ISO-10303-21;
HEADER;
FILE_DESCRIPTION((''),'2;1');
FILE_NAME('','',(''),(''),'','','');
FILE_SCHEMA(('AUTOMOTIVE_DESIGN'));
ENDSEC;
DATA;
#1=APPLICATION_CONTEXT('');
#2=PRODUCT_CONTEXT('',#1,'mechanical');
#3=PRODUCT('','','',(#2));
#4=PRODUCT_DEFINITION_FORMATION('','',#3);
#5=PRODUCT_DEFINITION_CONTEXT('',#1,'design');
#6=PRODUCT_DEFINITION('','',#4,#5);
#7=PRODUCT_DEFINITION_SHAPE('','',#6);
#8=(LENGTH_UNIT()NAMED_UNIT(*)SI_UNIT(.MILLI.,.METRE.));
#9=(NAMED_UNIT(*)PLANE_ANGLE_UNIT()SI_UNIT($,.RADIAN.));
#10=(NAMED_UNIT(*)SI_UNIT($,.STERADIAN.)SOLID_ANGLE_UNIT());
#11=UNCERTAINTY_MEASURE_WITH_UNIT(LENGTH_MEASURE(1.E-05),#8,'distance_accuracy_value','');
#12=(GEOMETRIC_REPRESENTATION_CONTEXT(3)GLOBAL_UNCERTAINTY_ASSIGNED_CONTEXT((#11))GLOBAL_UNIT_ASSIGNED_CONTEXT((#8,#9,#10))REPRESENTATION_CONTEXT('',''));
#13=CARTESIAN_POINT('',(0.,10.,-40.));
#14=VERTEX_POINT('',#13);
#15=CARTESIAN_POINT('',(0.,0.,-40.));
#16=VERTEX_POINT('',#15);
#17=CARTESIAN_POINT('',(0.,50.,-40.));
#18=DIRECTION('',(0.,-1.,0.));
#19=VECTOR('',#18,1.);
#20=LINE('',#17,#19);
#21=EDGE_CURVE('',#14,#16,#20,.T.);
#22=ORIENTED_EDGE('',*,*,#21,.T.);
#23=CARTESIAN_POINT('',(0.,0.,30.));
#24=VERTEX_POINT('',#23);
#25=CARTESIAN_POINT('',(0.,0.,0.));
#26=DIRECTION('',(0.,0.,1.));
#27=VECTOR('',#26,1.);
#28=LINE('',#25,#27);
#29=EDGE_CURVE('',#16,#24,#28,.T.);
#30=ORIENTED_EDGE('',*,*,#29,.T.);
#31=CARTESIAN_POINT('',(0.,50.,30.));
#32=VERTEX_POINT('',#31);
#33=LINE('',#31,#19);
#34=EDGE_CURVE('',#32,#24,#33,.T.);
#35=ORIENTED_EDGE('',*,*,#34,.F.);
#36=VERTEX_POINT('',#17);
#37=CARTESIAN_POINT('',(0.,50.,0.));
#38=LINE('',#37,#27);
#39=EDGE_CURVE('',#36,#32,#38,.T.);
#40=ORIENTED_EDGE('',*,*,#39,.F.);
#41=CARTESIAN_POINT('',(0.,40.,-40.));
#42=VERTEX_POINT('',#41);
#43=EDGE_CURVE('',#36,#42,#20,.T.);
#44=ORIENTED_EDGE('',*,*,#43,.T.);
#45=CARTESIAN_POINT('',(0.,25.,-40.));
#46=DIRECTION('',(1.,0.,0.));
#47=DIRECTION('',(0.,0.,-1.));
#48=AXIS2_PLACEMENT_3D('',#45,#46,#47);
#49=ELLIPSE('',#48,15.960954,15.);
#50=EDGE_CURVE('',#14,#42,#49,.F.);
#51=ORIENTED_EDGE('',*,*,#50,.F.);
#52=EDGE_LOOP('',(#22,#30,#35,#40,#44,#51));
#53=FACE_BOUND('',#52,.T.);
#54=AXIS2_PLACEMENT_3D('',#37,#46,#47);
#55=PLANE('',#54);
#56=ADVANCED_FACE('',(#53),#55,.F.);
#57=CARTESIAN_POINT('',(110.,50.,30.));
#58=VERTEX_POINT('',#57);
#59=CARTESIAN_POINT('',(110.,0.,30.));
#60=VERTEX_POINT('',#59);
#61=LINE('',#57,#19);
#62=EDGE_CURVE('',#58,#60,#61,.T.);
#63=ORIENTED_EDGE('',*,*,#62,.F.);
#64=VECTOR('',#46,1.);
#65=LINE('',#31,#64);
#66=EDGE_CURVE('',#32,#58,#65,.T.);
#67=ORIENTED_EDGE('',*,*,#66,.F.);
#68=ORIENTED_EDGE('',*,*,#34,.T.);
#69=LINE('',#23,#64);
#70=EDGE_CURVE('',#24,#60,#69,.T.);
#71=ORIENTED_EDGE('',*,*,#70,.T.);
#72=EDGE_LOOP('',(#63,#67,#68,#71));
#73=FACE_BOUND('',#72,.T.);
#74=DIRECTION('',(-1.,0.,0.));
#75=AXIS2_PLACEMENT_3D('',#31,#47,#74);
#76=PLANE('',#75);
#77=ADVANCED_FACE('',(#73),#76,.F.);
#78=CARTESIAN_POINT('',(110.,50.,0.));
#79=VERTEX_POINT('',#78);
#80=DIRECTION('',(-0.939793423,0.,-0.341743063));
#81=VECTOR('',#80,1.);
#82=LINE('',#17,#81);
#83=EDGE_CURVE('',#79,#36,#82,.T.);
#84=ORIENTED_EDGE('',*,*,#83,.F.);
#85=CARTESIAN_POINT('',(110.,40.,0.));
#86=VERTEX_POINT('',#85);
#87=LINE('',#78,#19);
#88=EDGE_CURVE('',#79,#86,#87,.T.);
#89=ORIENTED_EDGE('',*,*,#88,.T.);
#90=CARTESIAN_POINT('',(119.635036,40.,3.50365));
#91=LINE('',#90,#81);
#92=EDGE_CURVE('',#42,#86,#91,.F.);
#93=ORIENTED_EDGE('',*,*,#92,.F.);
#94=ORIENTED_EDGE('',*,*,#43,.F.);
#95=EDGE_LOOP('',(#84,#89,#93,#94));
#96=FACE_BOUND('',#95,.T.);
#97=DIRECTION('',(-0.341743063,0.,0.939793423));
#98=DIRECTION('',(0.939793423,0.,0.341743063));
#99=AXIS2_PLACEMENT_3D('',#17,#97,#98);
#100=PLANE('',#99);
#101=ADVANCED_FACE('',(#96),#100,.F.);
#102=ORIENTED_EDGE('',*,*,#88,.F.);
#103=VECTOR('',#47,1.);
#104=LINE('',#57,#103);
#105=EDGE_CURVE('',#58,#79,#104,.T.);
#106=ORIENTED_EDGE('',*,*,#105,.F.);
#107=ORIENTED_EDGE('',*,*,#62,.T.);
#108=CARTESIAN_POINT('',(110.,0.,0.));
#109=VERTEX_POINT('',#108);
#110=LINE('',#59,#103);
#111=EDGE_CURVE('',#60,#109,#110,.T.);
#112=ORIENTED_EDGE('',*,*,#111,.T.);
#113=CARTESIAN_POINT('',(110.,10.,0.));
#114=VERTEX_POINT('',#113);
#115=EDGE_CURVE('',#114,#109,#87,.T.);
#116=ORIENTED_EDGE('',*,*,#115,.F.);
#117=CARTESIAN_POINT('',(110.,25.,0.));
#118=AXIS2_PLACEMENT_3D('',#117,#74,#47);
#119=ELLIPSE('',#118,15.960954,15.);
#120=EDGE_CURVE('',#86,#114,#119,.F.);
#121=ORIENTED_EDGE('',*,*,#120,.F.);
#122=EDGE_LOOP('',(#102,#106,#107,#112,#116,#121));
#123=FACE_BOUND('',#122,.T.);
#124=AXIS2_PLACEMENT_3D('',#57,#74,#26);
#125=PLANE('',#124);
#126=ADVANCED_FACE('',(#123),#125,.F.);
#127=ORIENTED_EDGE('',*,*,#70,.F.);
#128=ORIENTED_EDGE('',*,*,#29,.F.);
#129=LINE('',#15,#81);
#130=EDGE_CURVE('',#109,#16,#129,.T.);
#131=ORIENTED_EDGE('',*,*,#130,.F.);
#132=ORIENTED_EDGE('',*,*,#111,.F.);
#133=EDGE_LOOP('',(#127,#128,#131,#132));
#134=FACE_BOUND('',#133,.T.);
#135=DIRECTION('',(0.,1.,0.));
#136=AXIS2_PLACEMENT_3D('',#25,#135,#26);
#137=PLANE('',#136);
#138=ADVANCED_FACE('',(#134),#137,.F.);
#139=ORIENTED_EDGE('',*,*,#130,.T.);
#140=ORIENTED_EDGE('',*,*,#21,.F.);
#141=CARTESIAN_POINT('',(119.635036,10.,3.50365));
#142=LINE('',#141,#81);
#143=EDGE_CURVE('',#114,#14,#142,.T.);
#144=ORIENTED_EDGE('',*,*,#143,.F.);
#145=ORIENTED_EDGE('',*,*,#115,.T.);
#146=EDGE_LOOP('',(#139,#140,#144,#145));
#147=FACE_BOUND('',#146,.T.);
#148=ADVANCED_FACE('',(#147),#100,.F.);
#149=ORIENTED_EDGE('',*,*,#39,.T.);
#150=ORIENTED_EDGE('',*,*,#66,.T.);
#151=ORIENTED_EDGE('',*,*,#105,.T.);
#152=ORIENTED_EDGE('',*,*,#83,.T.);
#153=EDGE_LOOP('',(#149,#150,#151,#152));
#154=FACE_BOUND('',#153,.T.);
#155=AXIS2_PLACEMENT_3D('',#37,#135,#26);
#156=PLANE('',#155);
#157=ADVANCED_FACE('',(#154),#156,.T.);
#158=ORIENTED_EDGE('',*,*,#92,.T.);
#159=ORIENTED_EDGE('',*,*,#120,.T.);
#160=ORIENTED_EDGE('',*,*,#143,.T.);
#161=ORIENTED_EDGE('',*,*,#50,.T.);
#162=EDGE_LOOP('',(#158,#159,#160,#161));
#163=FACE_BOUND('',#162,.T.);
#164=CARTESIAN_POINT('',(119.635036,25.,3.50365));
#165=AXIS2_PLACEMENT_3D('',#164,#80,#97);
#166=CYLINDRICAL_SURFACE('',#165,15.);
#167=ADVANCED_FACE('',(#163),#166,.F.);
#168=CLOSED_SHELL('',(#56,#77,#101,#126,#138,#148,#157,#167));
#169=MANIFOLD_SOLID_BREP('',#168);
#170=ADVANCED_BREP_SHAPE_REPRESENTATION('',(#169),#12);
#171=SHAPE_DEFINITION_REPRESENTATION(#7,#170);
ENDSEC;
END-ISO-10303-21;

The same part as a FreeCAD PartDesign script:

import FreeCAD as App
import Part
import Sketcher
from FreeCAD import Vector
Q = App.Units.Quantity

doc = App.newDocument("Part")
params = doc.addObject("Spreadsheet::Sheet", "Params")
for row, (alias, value) in enumerate([
    ("sketch1_width", "110 mm"),
    ("sketch1_height", "70 mm"),
    ("sketch1_height2", "30 mm"),
    ("pad1_length", "50 mm"),
    ("sketch2_diameter", "30 mm"),
], start=1):
    params.set(f"A{row}", alias)
    params.set(f"B{row}", "=" + value)
    params.setAlias(f"B{row}", alias)

body = doc.addObject("PartDesign::Body", "Body")

# Sketch on XZ plane
sketch1 = doc.addObject("Sketcher::SketchObject", "Sketch")
body.addObject(sketch1)
sketch1.AttachmentSupport = (doc.XZ_Plane, [""])
sketch1.MapMode = "FlatFace"
sketch1.addGeometry([
    Part.LineSegment(Vector(0, -40, 0), Vector(0, 30, 0)),
    Part.LineSegment(Vector(0, 30, 0), Vector(110, 30, 0)),
    Part.LineSegment(Vector(110, 30, 0), Vector(110, 0, 0)),
    Part.LineSegment(Vector(110, 0, 0), Vector(0, -40, 0)),
], False)
sketch1.addConstraint([
    Sketcher.Constraint("Coincident", 0, 2, 1, 1),
    Sketcher.Constraint("Coincident", 1, 2, 2, 1),
    Sketcher.Constraint("Coincident", 2, 2, 3, 1),
    Sketcher.Constraint("Coincident", 3, 2, 0, 1),
    Sketcher.Constraint("Vertical", 0),
    Sketcher.Constraint("Horizontal", 1),
    Sketcher.Constraint("Vertical", 2),
    Sketcher.Constraint("PointOnObject", 0, 2, -2),
    Sketcher.Constraint("PointOnObject", 2, 2, -1),
    Sketcher.Constraint("DistanceX", 1, 1, 1, 2, Q("110 mm")),
    Sketcher.Constraint("DistanceY", 0, 1, 0, 2, Q("70 mm")),
    Sketcher.Constraint("DistanceY", 2, 2, 2, 1, Q("30 mm")),
])
sketch1.setExpression("Constraints[9]", "Params.sketch1_width")
sketch1.setExpression("Constraints[10]", "Params.sketch1_height")
sketch1.setExpression("Constraints[11]", "Params.sketch1_height2")
pad1 = doc.addObject("PartDesign::Pad", "Pad")
body.addObject(pad1)
pad1.Profile = sketch1
pad1.setExpression("Length", "Params.pad1_length")
pad1.Reversed = True

# Sketch on an angled plane
sketch2 = doc.addObject("Sketcher::SketchObject", "Sketch001")
body.addObject(sketch2)
sketch2.Placement = App.Placement(Vector(-12.846715, 0, -4.671533), App.Rotation(Vector(0.341743063, 0, -0.939793423), Vector(0, 0.999999999, 0), Vector(0.939793423, 0, 0.341743063), "ZXY"))
sketch2.addGeometry(Part.Circle(Vector(38, 25, 0), Vector(0, 0, 1), 15), False)
sketch2.addConstraint([
    Sketcher.Constraint("Diameter", 0, Q("30 mm")),
    Sketcher.Constraint("DistanceY", -1, 1, 0, 3, Q("25 mm")),
    Sketcher.Constraint("DistanceX", -1, 1, 0, 3, Q("37.591737 mm")),
])
sketch2.setExpression("Constraints[0]", "Params.sketch2_diameter")
pocket1 = doc.addObject("PartDesign::Pocket", "Pocket")
body.addObject(pocket1)
pocket1.Profile = sketch2
pocket1.Type = "ThroughAll"
pocket1.Reversed = True

doc.recompute()
